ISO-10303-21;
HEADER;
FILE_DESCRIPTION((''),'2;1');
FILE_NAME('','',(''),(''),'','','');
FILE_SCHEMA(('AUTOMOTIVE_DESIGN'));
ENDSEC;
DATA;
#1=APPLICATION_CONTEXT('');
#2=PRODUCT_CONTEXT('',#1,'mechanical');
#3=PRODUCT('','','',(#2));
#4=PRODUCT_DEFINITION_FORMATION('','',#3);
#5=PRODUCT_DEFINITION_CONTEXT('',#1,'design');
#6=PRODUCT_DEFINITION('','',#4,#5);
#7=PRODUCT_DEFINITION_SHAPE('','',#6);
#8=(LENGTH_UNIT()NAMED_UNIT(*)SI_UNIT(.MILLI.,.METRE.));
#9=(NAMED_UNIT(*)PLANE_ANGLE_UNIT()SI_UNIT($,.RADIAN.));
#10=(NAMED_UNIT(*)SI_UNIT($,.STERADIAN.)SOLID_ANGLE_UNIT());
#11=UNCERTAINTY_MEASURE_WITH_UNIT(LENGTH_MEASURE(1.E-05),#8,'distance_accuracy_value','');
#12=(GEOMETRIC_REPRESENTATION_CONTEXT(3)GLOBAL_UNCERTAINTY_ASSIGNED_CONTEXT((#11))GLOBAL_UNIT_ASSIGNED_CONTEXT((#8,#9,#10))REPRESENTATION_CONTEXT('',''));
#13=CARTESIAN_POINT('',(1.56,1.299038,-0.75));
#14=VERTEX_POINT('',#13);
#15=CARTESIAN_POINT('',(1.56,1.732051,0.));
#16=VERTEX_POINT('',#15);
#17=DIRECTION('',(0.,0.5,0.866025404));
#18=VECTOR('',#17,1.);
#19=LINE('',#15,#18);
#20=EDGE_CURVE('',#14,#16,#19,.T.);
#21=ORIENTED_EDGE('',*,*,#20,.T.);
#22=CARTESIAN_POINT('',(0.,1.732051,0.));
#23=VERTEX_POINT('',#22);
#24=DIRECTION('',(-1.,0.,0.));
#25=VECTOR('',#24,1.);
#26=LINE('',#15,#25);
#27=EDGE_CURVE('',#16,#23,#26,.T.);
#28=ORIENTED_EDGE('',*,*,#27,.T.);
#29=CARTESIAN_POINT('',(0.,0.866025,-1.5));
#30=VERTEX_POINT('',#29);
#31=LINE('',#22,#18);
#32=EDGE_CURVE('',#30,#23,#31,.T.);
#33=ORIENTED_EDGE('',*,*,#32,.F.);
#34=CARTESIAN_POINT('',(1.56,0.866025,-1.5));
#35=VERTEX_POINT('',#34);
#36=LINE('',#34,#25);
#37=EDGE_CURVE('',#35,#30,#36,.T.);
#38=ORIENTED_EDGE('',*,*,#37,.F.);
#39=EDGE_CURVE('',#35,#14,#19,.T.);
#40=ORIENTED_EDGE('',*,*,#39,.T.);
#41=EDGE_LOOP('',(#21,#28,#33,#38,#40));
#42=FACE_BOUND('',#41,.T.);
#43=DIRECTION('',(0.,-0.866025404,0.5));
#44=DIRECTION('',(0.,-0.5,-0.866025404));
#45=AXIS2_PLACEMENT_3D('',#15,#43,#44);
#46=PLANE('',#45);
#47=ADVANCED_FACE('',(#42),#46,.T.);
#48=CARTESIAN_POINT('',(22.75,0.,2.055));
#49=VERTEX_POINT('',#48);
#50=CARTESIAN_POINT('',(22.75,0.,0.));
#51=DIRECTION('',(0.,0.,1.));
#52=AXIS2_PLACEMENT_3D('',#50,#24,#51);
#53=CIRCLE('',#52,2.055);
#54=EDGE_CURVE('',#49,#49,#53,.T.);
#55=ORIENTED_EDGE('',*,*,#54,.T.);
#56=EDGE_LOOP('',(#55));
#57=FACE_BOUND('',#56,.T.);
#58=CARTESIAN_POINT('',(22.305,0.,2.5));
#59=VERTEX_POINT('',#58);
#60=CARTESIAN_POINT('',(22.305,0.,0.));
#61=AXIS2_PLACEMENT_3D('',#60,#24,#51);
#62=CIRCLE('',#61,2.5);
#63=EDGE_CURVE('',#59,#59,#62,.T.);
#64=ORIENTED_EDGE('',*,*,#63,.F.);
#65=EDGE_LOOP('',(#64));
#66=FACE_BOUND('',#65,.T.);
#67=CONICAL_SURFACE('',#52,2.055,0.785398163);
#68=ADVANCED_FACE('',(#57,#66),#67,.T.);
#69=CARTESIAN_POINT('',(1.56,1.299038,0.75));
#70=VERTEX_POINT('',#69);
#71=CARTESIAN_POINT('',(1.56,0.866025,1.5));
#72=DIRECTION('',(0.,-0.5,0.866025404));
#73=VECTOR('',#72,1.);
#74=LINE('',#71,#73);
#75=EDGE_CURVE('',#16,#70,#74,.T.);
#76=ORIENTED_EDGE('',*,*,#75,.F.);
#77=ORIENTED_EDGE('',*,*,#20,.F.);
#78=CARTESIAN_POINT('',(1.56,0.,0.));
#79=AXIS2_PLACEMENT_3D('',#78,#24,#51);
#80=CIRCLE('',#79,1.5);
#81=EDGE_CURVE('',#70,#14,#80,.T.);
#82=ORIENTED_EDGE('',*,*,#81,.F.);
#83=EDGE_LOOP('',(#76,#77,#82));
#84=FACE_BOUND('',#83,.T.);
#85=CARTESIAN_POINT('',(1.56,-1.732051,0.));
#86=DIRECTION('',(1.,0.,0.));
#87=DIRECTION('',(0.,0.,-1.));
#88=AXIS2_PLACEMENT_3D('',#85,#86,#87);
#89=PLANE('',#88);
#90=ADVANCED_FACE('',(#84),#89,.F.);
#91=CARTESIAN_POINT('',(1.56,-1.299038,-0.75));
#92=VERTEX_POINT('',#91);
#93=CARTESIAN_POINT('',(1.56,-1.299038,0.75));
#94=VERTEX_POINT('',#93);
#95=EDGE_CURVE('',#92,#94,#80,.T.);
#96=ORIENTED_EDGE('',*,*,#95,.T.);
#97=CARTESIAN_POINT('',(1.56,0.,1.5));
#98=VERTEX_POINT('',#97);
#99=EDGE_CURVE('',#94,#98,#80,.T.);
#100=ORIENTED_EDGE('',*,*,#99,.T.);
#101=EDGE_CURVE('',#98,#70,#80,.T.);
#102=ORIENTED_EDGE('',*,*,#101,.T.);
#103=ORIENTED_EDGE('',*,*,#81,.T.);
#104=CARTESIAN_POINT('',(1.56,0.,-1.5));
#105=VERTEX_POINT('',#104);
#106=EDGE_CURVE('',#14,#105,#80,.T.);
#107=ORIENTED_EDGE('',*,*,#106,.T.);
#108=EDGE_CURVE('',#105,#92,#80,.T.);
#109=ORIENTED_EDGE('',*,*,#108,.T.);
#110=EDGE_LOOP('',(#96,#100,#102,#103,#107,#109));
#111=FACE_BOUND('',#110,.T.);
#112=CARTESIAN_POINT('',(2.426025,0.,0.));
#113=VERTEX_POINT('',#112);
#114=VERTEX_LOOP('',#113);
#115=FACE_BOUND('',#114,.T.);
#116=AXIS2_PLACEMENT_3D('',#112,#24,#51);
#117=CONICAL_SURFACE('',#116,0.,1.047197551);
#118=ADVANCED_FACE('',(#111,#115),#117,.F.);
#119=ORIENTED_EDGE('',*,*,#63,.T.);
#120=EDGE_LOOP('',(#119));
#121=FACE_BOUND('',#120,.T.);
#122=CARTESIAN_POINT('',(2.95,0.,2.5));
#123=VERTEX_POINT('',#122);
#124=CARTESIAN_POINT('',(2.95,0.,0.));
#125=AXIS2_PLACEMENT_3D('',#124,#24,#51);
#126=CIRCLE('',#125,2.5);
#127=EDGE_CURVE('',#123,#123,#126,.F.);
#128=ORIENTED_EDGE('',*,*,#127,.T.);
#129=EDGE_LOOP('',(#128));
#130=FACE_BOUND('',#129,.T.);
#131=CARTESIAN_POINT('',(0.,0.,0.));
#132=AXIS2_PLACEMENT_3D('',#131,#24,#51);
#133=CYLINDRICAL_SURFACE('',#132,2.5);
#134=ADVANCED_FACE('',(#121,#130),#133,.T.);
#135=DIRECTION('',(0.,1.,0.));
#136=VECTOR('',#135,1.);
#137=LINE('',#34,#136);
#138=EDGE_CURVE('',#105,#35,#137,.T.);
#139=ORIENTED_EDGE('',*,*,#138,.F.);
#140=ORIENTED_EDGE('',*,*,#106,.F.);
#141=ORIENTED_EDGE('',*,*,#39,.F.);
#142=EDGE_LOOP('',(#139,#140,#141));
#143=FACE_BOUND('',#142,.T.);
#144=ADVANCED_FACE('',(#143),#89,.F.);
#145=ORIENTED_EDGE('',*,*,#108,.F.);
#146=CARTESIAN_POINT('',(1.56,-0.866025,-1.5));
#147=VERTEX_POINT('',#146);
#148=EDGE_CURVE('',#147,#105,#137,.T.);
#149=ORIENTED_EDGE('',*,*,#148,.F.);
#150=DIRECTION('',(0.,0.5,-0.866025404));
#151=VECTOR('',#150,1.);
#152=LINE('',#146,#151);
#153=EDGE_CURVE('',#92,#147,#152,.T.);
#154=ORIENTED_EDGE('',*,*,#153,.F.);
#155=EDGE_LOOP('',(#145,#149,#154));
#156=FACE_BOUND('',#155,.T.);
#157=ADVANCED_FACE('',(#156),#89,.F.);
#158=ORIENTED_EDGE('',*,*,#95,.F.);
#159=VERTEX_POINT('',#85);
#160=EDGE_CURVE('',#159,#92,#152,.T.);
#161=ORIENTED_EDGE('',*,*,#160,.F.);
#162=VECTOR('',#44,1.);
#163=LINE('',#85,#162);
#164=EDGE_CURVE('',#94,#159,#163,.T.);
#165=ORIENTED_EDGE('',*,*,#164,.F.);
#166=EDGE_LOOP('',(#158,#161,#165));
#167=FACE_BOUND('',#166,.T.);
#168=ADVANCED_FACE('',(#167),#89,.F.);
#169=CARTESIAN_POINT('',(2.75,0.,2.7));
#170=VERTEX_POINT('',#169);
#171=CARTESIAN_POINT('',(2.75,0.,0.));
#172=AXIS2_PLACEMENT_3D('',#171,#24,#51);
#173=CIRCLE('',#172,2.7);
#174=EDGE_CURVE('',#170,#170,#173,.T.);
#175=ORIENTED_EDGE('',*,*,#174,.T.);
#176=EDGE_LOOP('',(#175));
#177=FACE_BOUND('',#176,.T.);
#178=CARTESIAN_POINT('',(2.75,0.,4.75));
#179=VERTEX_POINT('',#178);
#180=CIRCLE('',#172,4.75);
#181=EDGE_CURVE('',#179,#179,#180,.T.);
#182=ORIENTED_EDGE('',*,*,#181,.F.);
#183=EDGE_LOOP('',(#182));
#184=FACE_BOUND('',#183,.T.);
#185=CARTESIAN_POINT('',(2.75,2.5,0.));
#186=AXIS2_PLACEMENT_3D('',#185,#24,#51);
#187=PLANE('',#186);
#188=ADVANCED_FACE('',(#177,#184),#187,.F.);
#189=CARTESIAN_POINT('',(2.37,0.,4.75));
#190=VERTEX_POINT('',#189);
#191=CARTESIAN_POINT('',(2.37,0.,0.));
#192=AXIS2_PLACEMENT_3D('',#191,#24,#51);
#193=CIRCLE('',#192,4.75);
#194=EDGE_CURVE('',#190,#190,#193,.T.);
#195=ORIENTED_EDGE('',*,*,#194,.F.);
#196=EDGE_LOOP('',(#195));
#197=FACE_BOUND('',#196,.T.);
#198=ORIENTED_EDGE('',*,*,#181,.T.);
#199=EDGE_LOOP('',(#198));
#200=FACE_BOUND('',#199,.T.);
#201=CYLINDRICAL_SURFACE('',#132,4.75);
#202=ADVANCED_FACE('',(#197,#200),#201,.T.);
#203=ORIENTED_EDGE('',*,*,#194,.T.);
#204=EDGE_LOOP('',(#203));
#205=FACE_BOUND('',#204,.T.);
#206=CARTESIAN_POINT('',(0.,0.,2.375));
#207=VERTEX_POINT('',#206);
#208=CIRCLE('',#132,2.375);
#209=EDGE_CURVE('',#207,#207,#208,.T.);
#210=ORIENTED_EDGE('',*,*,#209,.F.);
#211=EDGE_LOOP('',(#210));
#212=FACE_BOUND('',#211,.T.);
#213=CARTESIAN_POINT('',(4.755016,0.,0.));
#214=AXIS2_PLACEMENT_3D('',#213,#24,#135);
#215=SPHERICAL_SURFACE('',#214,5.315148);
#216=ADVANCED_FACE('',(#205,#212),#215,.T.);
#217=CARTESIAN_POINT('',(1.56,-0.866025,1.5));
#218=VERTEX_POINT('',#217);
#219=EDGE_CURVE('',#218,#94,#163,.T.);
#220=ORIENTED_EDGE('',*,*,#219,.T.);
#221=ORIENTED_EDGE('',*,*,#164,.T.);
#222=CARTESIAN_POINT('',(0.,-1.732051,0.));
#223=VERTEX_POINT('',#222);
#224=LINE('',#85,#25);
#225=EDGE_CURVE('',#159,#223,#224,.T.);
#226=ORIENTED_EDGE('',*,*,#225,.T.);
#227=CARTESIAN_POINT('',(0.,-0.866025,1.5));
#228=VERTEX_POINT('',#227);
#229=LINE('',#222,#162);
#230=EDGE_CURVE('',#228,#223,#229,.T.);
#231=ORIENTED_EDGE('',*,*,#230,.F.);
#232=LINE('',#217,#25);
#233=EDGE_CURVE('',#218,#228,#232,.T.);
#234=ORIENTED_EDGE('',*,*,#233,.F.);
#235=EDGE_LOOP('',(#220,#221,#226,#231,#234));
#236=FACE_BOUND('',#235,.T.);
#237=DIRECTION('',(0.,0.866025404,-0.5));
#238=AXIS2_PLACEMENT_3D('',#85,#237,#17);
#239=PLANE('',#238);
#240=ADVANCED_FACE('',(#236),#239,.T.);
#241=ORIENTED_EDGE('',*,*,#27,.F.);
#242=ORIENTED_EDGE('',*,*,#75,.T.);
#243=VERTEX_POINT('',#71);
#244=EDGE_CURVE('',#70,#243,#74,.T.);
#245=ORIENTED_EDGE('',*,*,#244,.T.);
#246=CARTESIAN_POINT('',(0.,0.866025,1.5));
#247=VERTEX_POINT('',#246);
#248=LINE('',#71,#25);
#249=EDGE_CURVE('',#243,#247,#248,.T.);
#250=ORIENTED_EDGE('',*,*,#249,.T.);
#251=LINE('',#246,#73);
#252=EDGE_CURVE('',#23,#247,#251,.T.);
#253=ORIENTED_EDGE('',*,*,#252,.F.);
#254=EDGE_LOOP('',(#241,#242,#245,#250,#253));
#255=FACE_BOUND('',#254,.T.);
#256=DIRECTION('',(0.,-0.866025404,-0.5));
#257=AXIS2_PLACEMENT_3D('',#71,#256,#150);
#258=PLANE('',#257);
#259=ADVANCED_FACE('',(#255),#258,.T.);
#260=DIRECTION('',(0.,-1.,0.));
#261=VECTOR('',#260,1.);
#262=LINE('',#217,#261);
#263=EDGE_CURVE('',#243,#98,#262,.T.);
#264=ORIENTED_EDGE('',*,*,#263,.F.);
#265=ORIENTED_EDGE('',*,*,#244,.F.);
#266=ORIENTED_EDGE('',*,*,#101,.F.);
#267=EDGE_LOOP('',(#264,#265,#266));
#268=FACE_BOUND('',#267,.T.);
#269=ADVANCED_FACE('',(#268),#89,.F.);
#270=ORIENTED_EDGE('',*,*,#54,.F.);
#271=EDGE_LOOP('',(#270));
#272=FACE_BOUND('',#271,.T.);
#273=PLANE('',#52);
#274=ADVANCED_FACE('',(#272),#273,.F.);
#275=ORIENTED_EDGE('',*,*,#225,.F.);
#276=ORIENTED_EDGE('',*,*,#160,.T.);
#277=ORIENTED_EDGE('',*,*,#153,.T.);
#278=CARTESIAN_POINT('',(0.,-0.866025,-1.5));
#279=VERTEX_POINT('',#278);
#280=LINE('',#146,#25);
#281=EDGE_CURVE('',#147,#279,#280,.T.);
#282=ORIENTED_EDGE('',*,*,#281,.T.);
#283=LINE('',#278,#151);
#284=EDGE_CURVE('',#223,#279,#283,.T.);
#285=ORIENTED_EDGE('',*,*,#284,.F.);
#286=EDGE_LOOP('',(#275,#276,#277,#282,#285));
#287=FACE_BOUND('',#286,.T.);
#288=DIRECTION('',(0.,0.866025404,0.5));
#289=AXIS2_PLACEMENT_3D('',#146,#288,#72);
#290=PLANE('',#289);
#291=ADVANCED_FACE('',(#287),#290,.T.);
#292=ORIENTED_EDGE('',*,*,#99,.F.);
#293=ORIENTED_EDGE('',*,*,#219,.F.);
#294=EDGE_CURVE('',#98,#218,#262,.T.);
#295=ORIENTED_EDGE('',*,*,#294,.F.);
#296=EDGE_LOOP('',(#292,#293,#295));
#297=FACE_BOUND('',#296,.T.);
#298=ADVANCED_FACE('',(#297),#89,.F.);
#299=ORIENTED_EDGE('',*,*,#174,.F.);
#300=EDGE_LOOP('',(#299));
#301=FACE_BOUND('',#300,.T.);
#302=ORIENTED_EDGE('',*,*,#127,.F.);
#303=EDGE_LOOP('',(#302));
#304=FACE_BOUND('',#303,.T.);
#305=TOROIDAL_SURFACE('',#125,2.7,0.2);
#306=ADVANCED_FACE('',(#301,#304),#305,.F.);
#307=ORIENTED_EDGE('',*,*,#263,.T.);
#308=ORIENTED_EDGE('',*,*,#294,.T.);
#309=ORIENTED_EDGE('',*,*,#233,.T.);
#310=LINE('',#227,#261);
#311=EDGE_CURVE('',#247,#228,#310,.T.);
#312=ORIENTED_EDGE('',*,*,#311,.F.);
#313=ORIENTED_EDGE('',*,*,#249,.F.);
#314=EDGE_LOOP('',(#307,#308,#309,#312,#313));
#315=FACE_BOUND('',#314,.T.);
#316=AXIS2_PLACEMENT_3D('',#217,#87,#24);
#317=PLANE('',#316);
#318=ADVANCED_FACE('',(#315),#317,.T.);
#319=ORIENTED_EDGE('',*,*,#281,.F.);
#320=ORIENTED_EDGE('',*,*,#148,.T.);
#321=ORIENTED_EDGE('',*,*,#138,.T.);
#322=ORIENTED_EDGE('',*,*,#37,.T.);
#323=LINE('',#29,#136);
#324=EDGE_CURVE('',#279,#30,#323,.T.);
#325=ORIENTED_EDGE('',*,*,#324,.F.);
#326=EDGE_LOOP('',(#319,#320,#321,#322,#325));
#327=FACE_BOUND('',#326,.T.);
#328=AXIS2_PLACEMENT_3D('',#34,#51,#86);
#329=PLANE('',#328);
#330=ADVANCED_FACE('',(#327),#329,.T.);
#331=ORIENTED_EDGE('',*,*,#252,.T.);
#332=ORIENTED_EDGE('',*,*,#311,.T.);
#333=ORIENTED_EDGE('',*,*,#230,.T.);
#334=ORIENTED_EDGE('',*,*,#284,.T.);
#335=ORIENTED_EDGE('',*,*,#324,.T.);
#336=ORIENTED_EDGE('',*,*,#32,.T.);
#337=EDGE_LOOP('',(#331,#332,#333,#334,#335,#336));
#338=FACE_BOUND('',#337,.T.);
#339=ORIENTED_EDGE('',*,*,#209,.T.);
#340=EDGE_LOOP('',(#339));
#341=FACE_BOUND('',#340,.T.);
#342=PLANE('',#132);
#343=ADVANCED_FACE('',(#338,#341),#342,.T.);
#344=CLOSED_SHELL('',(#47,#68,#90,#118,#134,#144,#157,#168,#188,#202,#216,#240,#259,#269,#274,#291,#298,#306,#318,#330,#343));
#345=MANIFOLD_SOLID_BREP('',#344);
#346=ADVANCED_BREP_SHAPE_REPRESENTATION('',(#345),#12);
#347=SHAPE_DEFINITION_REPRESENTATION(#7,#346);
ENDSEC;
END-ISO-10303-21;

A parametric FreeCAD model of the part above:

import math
import FreeCAD as App
import Part
import Sketcher
from FreeCAD import Vector
Q = App.Units.Quantity


def edges_at(feature, points):
    """Names of the edges that pass closest to the given points."""
    edges = feature.Shape.Edges
    near = lambda p: min(range(len(edges)), key=lambda i: edges[i].distToShape(Part.Vertex(*p))[0])
    return sorted({f"Edge{near(p) + 1}" for p in points})

doc = App.newDocument("Part")
body = doc.addObject("PartDesign::Body", "Body")

sketch1 = doc.addObject("Sketcher::SketchObject", "Sketch")
body.addObject(sketch1)
sketch1.AttachmentSupport = (doc.XY_Plane, [""])
sketch1.MapMode = "FlatFace"
sketch1.addGeometry([
    Part.LineSegment(Vector(22.75, 0, 0), Vector(22.75, 2.055, 0)),
    Part.LineSegment(Vector(22.75, 2.055, 0), Vector(22.305, 2.5, 0)),
    Part.LineSegment(Vector(22.305, 2.5, 0), Vector(2.75, 2.5, 0)),
    Part.LineSegment(Vector(2.75, 2.5, 0), Vector(2.75, 4.75, 0)),
    Part.LineSegment(Vector(2.75, 4.75, 0), Vector(2.37, 4.75, 0)),
    Part.ArcOfCircle(Part.Circle(Vector(4.755016, 0, 0), Vector(0, 0, 1), 5.315148), math.radians(116.66162), math.radians(153.459129)),
    Part.LineSegment(Vector(0, 2.375, 0), Vector(0, 0, 0)),
    Part.LineSegment(Vector(0, 0, 0), Vector(22.75, 0, 0)),
], False)
sketch1.addConstraint([
    Sketcher.Constraint("Coincident", 0, 2, 1, 1),
    Sketcher.Constraint("Coincident", 1, 2, 2, 1),
    Sketcher.Constraint("Coincident", 2, 2, 3, 1),
    Sketcher.Constraint("Coincident", 3, 2, 4, 1),
    Sketcher.Constraint("Coincident", 4, 2, 5, 1),
    Sketcher.Constraint("Coincident", 5, 2, 6, 1),
    Sketcher.Constraint("Coincident", 6, 2, 7, 1),
    Sketcher.Constraint("Coincident", 7, 2, 0, 1),
    Sketcher.Constraint("Vertical", 0),
    Sketcher.Constraint("Horizontal", 2),
    Sketcher.Constraint("Vertical", 3),
    Sketcher.Constraint("Horizontal", 4),
    Sketcher.Constraint("Vertical", 6),
    Sketcher.Constraint("Horizontal", 7),
    Sketcher.Constraint("Coincident", 6, 2, -1, 1),
    Sketcher.Constraint("PointOnObject", 5, 3, -1),
    Sketcher.Constraint("Angle", 1, Q("135 deg")),
    Sketcher.Constraint("DistanceX", 2, 2, 0, 2, 20.0),
    Sketcher.Constraint("DistanceX", 4, 2, 4, 1, 0.38),
    Sketcher.Constraint("DistanceX", 7, 1, 7, 2, 22.75),
    Sketcher.Constraint("DistanceY", 3, 1, 3, 2, 2.25),
    Sketcher.Constraint("DistanceY", -1, 1, 1, 2, 2.5),
    Sketcher.Constraint("DistanceX", 2, 2, 2, 1, 19.555),
    Sketcher.Constraint("DistanceY", 6, 2, 6, 1, 2.375),
])
revolution = doc.addObject("PartDesign::Revolution", "Revolution")
body.addObject(revolution)
revolution.Profile = sketch1
revolution.ReferenceAxis = (sketch1, ["H_Axis"])
revolution.Angle = 360
doc.recompute()

fillet = doc.addObject("PartDesign::Fillet", "Fillet")
body.addObject(fillet)
fillet.Base = (revolution, edges_at(revolution, [(2.75, -2.5, 0)]))
fillet.Radius = 0.2

sketch2 = doc.addObject("Sketcher::SketchObject", "Sketch001")
body.addObject(sketch2)
sketch2.AttachmentSupport = (doc.XY_Plane, [""])
sketch2.MapMode = "FlatFace"
sketch2.addGeometry([
    Part.LineSegment(Vector(1.56, 1.5, 0), Vector(0, 1.5, 0)),
    Part.LineSegment(Vector(0, 1.5, 0), Vector(0, 0, 0)),
    Part.LineSegment(Vector(0, 0, 0), Vector(2.426025, 0, 0)),
    Part.LineSegment(Vector(2.426025, 0, 0), Vector(1.56, 1.5, 0)),
], False)
sketch2.addConstraint([
    Sketcher.Constraint("Coincident", 0, 2, 1, 1),
    Sketcher.Constraint("Coincident", 1, 2, 2, 1),
    Sketcher.Constraint("Coincident", 2, 2, 3, 1),
    Sketcher.Constraint("Coincident", 3, 2, 0, 1),
    Sketcher.Constraint("Horizontal", 0),
    Sketcher.Constraint("Vertical", 1),
    Sketcher.Constraint("Horizontal", 2),
    Sketcher.Constraint("Coincident", 1, 2, -1, 1),
    Sketcher.Constraint("Angle", 3, Q("120 deg")),
    Sketcher.Constraint("DistanceY", 1, 2, 1, 1, 1.5),
    Sketcher.Constraint("DistanceX", 0, 2, 0, 1, 1.56),
])
groove = doc.addObject("PartDesign::Groove", "Groove")
body.addObject(groove)
groove.Profile = sketch2
groove.ReferenceAxis = (sketch2, ["H_Axis"])
groove.Angle = 360

sketch3 = doc.addObject("Sketcher::SketchObject", "Sketch002")
body.addObject(sketch3)
sketch3.AttachmentSupport = (doc.YZ_Plane, [""])
sketch3.MapMode = "FlatFace"
sketch3.addGeometry([
    Part.LineSegment(Vector(0.866025, 1.5, 0), Vector(-0.866025, 1.5, 0)),
    Part.LineSegment(Vector(-0.866025, 1.5, 0), Vector(-1.732051, 0, 0)),
    Part.LineSegment(Vector(-1.732051, 0, 0), Vector(-0.866025, -1.5, 0)),
    Part.LineSegment(Vector(-0.866025, -1.5, 0), Vector(0.866025, -1.5, 0)),
    Part.LineSegment(Vector(0.866025, -1.5, 0), Vector(1.732051, 0, 0)),
    Part.LineSegment(Vector(1.732051, 0, 0), Vector(0.866025, 1.5, 0)),
], False)
sketch3.addConstraint([
    Sketcher.Constraint("Coincident", 0, 2, 1, 1),
    Sketcher.Constraint("Coincident", 1, 2, 2, 1),
    Sketcher.Constraint("Coincident", 2, 2, 3, 1),
    Sketcher.Constraint("Coincident", 3, 2, 4, 1),
    Sketcher.Constraint("Coincident", 4, 2, 5, 1),
    Sketcher.Constraint("Coincident", 5, 2, 0, 1),
    Sketcher.Constraint("Horizontal", 0),
    Sketcher.Constraint("Horizontal", 3),
    Sketcher.Constraint("Symmetric", 0, 2, 3, 2, -1, 1),
    Sketcher.Constraint("Symmetric", 1, 2, 4, 2, -1, 1),
    Sketcher.Constraint("PointOnObject", 1, 2, -1),
    Sketcher.Constraint("Parallel", 2, 5),
    Sketcher.Constraint("Vertical", 0, 2, 2, 2),
    Sketcher.Constraint("Angle", 1, Q("-120 deg")),
    Sketcher.Constraint("DistanceY", 2, 2, 0, 2, 3.0),
    Sketcher.Constraint("DistanceX", 0, 2, 0, 1, 1.732051),
])
pocket1 = doc.addObject("PartDesign::Pocket", "Pocket")
body.addObject(pocket1)
pocket1.Profile = sketch3
pocket1.Length = 1.56
pocket1.Reversed = True

doc.recompute()
